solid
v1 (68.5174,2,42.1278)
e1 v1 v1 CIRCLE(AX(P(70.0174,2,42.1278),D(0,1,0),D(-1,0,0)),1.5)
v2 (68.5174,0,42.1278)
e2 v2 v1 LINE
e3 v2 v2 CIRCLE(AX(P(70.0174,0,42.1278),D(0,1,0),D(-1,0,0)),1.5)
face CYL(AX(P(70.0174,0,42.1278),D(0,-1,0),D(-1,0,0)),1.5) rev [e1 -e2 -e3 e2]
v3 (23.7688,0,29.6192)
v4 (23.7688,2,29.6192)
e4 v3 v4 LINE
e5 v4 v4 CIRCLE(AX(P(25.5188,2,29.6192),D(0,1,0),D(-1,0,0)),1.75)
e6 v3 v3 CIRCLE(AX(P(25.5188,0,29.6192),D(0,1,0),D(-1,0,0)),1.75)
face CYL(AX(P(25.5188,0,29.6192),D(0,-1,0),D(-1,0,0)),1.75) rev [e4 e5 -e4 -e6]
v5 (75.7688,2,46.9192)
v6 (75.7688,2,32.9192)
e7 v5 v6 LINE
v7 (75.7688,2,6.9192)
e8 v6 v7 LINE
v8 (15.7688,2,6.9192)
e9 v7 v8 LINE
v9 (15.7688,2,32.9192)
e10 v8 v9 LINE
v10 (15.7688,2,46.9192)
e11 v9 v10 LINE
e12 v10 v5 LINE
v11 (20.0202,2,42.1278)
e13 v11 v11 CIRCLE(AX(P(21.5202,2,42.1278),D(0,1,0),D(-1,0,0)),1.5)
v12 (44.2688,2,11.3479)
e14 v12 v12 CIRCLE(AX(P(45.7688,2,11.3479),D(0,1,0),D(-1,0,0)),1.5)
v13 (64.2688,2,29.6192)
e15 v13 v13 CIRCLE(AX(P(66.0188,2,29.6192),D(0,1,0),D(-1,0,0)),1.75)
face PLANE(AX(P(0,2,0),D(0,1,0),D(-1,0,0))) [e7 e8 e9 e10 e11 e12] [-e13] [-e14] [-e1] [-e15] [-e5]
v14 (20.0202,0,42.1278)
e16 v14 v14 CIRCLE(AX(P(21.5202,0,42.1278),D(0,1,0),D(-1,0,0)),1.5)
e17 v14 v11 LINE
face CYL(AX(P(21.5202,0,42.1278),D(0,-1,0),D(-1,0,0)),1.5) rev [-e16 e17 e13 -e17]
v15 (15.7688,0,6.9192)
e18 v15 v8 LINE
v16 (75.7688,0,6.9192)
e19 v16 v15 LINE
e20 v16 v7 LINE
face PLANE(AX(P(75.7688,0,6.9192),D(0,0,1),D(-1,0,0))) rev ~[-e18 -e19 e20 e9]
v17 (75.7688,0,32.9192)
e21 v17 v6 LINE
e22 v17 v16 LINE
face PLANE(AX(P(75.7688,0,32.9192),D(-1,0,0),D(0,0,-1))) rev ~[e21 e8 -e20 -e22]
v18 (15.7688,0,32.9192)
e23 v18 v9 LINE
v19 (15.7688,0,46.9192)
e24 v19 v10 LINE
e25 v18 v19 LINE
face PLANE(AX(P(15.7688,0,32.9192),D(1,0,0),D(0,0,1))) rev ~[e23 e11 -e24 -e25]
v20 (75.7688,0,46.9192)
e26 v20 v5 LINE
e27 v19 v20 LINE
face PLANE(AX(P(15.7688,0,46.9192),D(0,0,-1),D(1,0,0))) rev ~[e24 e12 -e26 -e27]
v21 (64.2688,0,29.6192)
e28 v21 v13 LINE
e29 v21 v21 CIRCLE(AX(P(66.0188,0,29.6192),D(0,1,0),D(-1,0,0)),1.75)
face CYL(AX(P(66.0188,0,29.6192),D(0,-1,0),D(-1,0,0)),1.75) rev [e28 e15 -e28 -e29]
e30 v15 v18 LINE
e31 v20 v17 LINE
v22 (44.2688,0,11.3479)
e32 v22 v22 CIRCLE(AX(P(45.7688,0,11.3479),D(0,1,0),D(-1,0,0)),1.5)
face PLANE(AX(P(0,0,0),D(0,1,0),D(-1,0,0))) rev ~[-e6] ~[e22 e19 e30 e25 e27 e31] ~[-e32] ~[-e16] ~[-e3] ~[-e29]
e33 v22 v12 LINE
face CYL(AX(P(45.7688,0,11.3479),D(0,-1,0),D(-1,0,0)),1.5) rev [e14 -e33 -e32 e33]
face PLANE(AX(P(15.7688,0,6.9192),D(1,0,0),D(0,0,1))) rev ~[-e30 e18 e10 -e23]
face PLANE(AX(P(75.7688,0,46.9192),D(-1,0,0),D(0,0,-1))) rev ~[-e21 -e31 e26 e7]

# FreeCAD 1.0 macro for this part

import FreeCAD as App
import Part
import Sketcher


def add_polygon(sketch, points):
    """Adds a closed chain of lines whose ends are joined by coincident constraints."""
    first, n = sketch.GeometryCount, len(points)
    for a, b in zip(points, points[1:] + points[:1]):
        sketch.addGeometry(Part.LineSegment(App.Vector(*a, 0), App.Vector(*b, 0)), False)
    for i in range(n):
        sketch.addConstraint(Sketcher.Constraint("Coincident", first + i, 2, first + (i + 1) % n, 1))

doc = App.newDocument("Part")
body = doc.addObject("PartDesign::Body", "Body")

sketch1 = body.newObject("Sketcher::SketchObject", "Sketch")
sketch1.AttachmentSupport = (doc.getObject("XZ_Plane"), [""])
sketch1.MapMode = "FlatFace"
add_polygon(sketch1, [(75.7688, 46.9192), (75.7688, 6.9192), (15.7688, 6.9192), (15.7688, 46.9192)])
sketch1.addGeometry(Part.Circle(App.Vector(45.7688, 11.3479, 0), App.Vector(0, 0, 1), 1.5), False)
sketch1.addGeometry(Part.Circle(App.Vector(66.0188, 29.6192, 0), App.Vector(0, 0, 1), 1.75), False)
sketch1.addGeometry(Part.Circle(App.Vector(70.0174, 42.1278, 0), App.Vector(0, 0, 1), 1.5), False)
sketch1.addGeometry(Part.Circle(App.Vector(25.5188, 29.6192, 0), App.Vector(0, 0, 1), 1.75), False)
sketch1.addGeometry(Part.Circle(App.Vector(21.5202, 42.1278, 0), App.Vector(0, 0, 1), 1.5), False)
sketch1.addConstraint([
    Sketcher.Constraint("Vertical", 0),
    Sketcher.Constraint("Horizontal", 1),
    Sketcher.Constraint("Vertical", 2),
    Sketcher.Constraint("Horizontal", 3),
    Sketcher.Constraint("Equal", 4, 6),
    Sketcher.Constraint("Equal", 5, 7),
    Sketcher.Constraint("Equal", 6, 8),
    Sketcher.Constraint("Horizontal", 5, 3, 7, 3),
    Sketcher.Constraint("Horizontal", 6, 3, 8, 3),
    Sketcher.Constraint("DistanceY", 0, 2, 0, 1, 40.0),
    Sketcher.Constraint("Diameter", 4, 3.0),
    Sketcher.Constraint("Diameter", 5, 3.5),
    Sketcher.Constraint("DistanceX", 1, 2, 1, 1, 60.0),
    Sketcher.Constraint("DistanceX", 4, 3, 0, 2, 30.0),
    Sketcher.Constraint("DistanceX", 7, 3, 5, 3, 40.5),
    Sketcher.Constraint("DistanceY", 0, 2, 5, 3, 22.7),
    Sketcher.Constraint("DistanceX", 4, 3, 5, 3, 20.25),
    Sketcher.Constraint("DistanceY", 4, 3, 6, 3, 30.78),
    Sketcher.Constraint("DistanceY", -1, 1, 4, 3, 11.348),
    Sketcher.Constraint("DistanceX", -1, 1, 4, 3, 45.7688),
    Sketcher.Constraint("DistanceY", -1, 1, 5, 3, 29.6192),
    Sketcher.Constraint("DistanceX", -1, 1, 6, 3, 70.0174),
    Sketcher.Constraint("DistanceX", -1, 1, 8, 3, 21.5202),
])
pad1 = body.newObject("PartDesign::Pad", "Pad")
pad1.Profile = sketch1
pad1.Length = 2
pad1.Reversed = True

doc.recompute()
